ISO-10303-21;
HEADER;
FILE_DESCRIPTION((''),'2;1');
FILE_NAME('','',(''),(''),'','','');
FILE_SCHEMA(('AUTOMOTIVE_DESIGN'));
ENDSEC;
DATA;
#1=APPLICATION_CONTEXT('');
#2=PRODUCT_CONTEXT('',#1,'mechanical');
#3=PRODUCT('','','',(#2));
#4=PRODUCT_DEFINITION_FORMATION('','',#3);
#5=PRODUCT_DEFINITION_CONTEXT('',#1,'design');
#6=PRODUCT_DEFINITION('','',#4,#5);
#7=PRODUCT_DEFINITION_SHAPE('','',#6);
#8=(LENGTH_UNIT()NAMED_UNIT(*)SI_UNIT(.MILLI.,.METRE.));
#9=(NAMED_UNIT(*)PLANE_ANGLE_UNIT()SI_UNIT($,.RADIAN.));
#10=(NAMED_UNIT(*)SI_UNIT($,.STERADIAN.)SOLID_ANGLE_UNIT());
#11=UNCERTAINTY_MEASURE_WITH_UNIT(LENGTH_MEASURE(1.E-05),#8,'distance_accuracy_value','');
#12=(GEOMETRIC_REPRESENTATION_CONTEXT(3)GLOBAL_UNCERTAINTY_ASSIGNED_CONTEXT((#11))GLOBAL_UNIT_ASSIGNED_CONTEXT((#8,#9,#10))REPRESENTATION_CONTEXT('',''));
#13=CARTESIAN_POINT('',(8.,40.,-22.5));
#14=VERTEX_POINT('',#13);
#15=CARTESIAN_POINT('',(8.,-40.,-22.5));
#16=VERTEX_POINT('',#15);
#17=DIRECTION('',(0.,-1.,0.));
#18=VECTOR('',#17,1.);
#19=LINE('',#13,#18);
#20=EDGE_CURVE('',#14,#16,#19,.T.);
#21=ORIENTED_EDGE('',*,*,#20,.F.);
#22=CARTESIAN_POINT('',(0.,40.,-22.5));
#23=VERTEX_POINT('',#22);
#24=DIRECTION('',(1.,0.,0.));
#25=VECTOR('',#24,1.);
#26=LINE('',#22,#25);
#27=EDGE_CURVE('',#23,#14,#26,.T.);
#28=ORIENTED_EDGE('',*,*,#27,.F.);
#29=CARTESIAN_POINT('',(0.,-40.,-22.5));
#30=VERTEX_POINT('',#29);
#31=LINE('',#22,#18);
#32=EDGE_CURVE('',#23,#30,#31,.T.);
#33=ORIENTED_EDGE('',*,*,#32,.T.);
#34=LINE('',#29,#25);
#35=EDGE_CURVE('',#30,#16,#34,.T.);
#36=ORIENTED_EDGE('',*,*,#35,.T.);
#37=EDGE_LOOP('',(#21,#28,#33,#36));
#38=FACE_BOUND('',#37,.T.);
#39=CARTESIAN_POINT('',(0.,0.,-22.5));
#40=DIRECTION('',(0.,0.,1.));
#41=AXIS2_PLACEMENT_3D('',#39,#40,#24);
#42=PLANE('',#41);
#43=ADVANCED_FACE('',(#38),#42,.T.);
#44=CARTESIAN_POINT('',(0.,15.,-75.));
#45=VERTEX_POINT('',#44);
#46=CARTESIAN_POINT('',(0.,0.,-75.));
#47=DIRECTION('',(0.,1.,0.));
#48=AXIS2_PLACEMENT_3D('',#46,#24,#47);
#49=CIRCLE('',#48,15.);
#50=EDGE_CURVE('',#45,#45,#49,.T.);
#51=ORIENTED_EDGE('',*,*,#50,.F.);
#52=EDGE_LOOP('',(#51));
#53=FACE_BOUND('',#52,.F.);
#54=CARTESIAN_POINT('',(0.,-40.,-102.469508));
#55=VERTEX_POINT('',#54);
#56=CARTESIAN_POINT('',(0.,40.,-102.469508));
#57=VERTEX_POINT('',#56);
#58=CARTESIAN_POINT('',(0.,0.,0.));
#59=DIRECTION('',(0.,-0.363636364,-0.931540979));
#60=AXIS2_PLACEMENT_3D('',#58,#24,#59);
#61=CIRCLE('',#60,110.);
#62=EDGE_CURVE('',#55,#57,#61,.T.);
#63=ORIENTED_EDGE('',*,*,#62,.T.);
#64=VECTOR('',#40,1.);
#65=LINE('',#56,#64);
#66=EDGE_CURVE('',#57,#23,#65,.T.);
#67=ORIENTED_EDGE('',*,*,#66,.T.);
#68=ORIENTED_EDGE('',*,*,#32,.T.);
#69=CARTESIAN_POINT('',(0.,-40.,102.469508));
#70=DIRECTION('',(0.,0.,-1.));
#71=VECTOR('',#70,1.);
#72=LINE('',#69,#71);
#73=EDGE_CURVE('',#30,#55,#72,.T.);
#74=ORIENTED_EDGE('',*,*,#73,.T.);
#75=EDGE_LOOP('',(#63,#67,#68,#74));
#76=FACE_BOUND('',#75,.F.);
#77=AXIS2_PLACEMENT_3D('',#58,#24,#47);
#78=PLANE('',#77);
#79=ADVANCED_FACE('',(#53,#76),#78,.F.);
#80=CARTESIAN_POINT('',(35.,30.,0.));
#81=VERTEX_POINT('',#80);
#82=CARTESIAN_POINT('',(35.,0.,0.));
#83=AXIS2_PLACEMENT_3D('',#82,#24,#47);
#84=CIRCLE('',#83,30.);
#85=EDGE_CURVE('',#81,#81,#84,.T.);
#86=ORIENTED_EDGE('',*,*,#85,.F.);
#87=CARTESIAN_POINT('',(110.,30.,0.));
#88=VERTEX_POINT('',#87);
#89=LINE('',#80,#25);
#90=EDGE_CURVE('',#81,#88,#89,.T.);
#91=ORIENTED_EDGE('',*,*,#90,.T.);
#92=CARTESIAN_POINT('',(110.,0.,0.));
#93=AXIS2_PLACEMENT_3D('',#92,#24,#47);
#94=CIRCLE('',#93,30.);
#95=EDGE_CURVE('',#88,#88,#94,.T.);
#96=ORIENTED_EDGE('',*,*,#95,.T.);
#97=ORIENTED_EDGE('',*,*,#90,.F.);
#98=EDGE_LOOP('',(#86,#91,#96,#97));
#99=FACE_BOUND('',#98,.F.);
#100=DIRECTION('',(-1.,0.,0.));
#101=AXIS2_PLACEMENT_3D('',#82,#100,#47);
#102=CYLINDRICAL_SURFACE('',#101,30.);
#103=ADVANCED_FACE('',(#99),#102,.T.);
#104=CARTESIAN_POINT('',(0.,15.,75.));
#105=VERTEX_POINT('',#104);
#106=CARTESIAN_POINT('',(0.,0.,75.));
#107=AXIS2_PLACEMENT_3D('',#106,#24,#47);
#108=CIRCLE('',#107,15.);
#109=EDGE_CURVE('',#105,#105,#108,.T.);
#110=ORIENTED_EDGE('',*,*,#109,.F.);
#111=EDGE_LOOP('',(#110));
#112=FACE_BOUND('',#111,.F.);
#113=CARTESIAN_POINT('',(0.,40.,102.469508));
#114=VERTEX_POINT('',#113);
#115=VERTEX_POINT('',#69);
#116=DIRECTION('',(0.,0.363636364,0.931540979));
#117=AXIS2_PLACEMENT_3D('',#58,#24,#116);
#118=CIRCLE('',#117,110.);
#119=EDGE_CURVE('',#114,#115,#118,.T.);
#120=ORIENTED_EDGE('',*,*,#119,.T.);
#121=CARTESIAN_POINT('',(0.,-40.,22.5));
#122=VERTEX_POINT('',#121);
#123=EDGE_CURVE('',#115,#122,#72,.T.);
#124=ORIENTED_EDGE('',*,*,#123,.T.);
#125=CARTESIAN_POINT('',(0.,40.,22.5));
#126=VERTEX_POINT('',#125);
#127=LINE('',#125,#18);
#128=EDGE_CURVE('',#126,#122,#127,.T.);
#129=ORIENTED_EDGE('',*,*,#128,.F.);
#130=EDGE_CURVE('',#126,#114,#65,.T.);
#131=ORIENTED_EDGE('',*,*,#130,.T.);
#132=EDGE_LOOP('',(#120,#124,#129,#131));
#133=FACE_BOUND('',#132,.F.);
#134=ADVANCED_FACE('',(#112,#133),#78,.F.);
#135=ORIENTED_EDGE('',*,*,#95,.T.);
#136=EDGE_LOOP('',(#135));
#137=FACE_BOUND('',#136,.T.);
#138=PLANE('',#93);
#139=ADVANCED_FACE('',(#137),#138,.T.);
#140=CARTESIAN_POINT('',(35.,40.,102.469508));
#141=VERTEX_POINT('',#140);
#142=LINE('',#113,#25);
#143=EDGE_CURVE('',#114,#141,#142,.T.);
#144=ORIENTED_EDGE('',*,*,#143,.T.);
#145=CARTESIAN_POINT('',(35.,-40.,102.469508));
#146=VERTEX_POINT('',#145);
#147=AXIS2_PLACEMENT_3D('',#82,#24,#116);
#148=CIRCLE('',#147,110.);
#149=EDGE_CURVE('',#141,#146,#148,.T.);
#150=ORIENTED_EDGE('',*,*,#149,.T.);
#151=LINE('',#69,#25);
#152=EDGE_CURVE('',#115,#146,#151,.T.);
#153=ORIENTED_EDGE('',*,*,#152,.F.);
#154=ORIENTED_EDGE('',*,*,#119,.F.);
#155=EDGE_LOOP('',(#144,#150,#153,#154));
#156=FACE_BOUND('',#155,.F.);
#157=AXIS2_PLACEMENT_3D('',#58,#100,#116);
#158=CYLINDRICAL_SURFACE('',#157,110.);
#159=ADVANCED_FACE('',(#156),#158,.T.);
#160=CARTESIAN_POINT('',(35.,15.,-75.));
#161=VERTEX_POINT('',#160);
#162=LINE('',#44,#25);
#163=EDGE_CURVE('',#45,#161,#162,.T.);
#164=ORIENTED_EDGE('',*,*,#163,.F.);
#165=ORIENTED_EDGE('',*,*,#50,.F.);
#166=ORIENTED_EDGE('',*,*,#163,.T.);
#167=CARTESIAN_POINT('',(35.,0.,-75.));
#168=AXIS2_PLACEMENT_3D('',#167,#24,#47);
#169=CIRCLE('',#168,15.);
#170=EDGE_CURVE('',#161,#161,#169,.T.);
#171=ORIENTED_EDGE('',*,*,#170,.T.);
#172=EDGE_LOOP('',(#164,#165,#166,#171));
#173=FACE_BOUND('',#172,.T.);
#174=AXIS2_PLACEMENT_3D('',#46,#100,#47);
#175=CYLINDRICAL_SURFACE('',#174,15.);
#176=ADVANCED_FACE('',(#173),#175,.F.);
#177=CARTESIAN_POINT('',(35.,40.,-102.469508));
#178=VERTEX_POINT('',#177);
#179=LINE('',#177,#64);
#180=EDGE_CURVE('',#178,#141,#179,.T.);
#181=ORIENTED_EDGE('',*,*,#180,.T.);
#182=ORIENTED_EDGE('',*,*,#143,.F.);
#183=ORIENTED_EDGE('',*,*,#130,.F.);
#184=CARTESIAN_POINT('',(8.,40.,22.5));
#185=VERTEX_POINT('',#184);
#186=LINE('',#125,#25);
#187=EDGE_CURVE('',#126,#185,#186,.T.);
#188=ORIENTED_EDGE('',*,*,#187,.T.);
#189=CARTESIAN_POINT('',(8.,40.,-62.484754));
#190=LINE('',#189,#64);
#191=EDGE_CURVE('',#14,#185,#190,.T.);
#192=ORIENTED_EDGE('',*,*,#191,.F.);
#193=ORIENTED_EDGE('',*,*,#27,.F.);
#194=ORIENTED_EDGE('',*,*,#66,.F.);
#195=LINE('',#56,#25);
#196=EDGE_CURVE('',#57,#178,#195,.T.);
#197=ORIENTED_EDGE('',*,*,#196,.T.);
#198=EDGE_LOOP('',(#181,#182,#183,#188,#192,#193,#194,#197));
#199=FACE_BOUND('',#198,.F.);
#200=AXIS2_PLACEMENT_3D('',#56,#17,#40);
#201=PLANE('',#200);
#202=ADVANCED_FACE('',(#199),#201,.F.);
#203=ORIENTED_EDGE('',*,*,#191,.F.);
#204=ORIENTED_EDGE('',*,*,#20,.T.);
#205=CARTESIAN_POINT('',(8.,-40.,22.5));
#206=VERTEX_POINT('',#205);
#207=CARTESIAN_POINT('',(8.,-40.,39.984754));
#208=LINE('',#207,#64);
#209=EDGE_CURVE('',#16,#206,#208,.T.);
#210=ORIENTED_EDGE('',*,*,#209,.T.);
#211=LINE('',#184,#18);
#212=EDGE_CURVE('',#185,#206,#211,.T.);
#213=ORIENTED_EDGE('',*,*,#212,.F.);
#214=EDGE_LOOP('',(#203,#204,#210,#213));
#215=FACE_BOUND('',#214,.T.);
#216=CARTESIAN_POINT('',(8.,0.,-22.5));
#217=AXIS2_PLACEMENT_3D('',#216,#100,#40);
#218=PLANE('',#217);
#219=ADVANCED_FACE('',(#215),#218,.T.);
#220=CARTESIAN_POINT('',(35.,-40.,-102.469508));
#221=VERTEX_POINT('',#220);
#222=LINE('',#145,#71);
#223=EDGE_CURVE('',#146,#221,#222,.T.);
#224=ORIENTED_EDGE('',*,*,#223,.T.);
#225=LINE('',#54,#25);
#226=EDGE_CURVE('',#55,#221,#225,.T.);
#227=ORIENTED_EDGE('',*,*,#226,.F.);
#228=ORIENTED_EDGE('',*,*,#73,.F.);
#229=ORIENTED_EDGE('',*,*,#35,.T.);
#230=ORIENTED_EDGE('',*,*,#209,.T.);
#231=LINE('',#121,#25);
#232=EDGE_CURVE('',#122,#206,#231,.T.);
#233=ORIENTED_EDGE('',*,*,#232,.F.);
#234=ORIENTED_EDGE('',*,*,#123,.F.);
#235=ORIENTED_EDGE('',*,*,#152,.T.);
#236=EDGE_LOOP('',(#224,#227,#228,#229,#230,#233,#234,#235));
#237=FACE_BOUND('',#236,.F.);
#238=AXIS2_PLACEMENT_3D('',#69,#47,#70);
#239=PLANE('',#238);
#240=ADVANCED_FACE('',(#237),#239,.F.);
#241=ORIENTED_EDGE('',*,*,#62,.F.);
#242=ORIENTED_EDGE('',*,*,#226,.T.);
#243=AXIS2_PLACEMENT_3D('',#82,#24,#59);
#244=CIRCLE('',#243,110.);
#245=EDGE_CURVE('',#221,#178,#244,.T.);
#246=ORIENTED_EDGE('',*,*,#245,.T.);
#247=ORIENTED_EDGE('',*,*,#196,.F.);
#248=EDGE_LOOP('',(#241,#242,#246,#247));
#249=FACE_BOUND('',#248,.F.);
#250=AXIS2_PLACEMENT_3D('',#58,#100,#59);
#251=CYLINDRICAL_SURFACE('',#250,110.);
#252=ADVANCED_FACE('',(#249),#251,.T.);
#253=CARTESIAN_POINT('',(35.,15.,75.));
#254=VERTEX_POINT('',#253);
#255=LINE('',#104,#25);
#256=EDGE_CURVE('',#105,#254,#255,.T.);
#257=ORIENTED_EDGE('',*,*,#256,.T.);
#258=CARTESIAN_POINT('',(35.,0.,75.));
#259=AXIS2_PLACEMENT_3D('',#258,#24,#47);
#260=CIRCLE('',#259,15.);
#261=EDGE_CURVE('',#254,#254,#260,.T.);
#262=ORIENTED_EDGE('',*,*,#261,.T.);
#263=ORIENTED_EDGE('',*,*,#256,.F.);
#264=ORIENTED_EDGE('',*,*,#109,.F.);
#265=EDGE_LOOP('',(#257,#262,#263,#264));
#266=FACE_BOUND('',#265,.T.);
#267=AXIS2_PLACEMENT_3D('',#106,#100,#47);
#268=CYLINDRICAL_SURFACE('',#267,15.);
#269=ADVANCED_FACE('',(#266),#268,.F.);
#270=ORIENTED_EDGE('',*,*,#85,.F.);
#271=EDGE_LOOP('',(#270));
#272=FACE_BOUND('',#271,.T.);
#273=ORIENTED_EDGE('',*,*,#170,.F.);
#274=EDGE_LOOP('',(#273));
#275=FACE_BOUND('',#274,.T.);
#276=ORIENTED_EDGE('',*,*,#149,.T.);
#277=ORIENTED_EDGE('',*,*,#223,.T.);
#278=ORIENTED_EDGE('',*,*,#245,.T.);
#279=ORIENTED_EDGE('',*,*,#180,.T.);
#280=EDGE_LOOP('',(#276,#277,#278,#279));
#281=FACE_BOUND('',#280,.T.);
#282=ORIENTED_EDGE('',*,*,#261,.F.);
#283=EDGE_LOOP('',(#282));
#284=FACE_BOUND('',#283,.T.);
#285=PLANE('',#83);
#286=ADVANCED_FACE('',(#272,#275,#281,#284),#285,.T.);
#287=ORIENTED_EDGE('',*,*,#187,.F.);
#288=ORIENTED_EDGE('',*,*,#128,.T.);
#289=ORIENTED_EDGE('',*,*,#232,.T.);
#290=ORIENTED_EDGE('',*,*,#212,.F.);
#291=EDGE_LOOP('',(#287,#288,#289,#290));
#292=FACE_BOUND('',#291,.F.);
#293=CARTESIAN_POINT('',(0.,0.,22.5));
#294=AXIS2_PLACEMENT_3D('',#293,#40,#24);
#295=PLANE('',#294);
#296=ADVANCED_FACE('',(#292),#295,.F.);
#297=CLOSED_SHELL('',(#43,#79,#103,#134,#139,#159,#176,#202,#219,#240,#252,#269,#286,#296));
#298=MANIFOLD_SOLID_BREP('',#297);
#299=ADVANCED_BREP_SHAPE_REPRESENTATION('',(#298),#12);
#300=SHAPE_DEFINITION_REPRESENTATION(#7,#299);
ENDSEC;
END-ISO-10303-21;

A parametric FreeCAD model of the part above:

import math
import FreeCAD as App
import Part
import Sketcher

doc = App.newDocument("Part")
body = doc.addObject("PartDesign::Body", "Body")

# Sketch on YZ plane
sketch1 = body.newObject("Sketcher::SketchObject", "Sketch")
sketch1.AttachmentSupport = (doc.getObject("YZ_Plane"), [""])
sketch1.MapMode = "FlatFace"
sketch1.addGeometry(Part.LineSegment(App.Vector(-40, 102, 0), App.Vector(-40, -102, 0)), False)
sketch1.addGeometry(Part.ArcOfCircle(Part.Circle(App.Vector(0, 0, 0), App.Vector(0, 0, 1), 110), math.radians(-111), math.radians(-69)), False)
sketch1.addGeometry(Part.LineSegment(App.Vector(40, -102, 0), App.Vector(40, 102, 0)), False)
sketch1.addGeometry(Part.ArcOfCircle(Part.Circle(App.Vector(0, 0, 0), App.Vector(0, 0, 1), 110), math.radians(69), math.radians(111)), False)
sketch1.addGeometry(Part.Circle(App.Vector(0, -75, 0), App.Vector(0, 0, 1), 15), False)
sketch1.addGeometry(Part.Circle(App.Vector(0, 75, 0), App.Vector(0, 0, 1), 15), False)
sketch1.addConstraint(Sketcher.Constraint("Coincident", 0, 2, 1, 1))
sketch1.addConstraint(Sketcher.Constraint("Coincident", 1, 2, 2, 1))
sketch1.addConstraint(Sketcher.Constraint("Coincident", 2, 2, 3, 1))
sketch1.addConstraint(Sketcher.Constraint("Coincident", 3, 2, 0, 1))
sketch1.addConstraint(Sketcher.Constraint("Vertical", 0))
sketch1.addConstraint(Sketcher.Constraint("Vertical", 2))
sketch1.addConstraint(Sketcher.Constraint("Coincident", 1, 3, -1, 1))
sketch1.addConstraint(Sketcher.Constraint("Coincident", 3, 3, -1, 1))
sketch1.addConstraint(Sketcher.Constraint("Equal", 1, 3))
sketch1.addConstraint(Sketcher.Constraint("Equal", 4, 5))
sketch1.addConstraint(Sketcher.Constraint("Symmetric", 4, 3, 5, 3, -1, 1))
sketch1.addConstraint(Sketcher.Constraint("PointOnObject", 4, 3, -2))
sketch1.addConstraint(Sketcher.Constraint("Horizontal", 0, 2, 1, 2))
sketch1.addConstraint(Sketcher.Constraint("Diameter", 4, 30.0))
sketch1.addConstraint(Sketcher.Constraint("Radius", 1, 110.0))
sketch1.addConstraint(Sketcher.Constraint("DistanceY", 4, 3, -1, 1, 75.0))
sketch1.addConstraint(Sketcher.Constraint("DistanceX", 0, 2, -1, 1, 40.0))
pad1 = body.newObject("PartDesign::Pad", "Pad")
pad1.Profile = sketch1
pad1.Length = 35

# Sketch on YZ plane
sketch2 = body.newObject("Sketcher::SketchObject", "Sketch001")
sketch2.AttachmentSupport = (doc.getObject("YZ_Plane"), [""])
sketch2.MapMode = "FlatFace"
sketch2.AttachmentOffset = App.Placement(App.Vector(0, 0, 35), App.Rotation())
sketch2.addGeometry(Part.Circle(App.Vector(0, 0, 0), App.Vector(0, 0, 1), 30), False)
sketch2.addConstraint(Sketcher.Constraint("Coincident", 0, 3, -1, 1))
sketch2.addConstraint(Sketcher.Constraint("Diameter", 0, 60.0))
pad2 = body.newObject("PartDesign::Pad", "Pad001")
pad2.Profile = sketch2
pad2.Length = 75

# Sketch on XZ plane
sketch3 = body.newObject("Sketcher::SketchObject", "Sketch002")
sketch3.AttachmentSupport = (doc.getObject("XZ_Plane"), [""])
sketch3.MapMode = "FlatFace"
sketch3.addGeometry(Part.LineSegment(App.Vector(0, 22, 0), App.Vector(0, -22, 0)), False)
sketch3.addGeometry(Part.LineSegment(App.Vector(0, -22, 0), App.Vector(8, -22, 0)), False)
sketch3.addGeometry(Part.LineSegment(App.Vector(8, -22, 0), App.Vector(8, 22, 0)), False)
sketch3.addGeometry(Part.LineSegment(App.Vector(8, 22, 0), App.Vector(0, 22, 0)), False)
sketch3.addConstraint(Sketcher.Constraint("Coincident", 0, 2, 1, 1))
sketch3.addConstraint(Sketcher.Constraint("Coincident", 1, 2, 2, 1))
sketch3.addConstraint(Sketcher.Constraint("Coincident", 2, 2, 3, 1))
sketch3.addConstraint(Sketcher.Constraint("Coincident", 3, 2, 0, 1))
sketch3.addConstraint(Sketcher.Constraint("Vertical", 0))
sketch3.addConstraint(Sketcher.Constraint("Horizontal", 1))
sketch3.addConstraint(Sketcher.Constraint("Vertical", 2))
sketch3.addConstraint(Sketcher.Constraint("Horizontal", 3))
sketch3.addConstraint(Sketcher.Constraint("Symmetric", 0, 2, 3, 2, -1, 1))
sketch3.addConstraint(Sketcher.Constraint("DistanceX", 1, 1, 1, 2, 8.0))
sketch3.addConstraint(Sketcher.Constraint("DistanceY", 0, 2, 0, 1, 45.0))
pocket1 = body.newObject("PartDesign::Pocket", "Pocket")
pocket1.Profile = sketch3
pocket1.Type = "ThroughAll"
pocket1.Midplane = True

doc.recompute()
